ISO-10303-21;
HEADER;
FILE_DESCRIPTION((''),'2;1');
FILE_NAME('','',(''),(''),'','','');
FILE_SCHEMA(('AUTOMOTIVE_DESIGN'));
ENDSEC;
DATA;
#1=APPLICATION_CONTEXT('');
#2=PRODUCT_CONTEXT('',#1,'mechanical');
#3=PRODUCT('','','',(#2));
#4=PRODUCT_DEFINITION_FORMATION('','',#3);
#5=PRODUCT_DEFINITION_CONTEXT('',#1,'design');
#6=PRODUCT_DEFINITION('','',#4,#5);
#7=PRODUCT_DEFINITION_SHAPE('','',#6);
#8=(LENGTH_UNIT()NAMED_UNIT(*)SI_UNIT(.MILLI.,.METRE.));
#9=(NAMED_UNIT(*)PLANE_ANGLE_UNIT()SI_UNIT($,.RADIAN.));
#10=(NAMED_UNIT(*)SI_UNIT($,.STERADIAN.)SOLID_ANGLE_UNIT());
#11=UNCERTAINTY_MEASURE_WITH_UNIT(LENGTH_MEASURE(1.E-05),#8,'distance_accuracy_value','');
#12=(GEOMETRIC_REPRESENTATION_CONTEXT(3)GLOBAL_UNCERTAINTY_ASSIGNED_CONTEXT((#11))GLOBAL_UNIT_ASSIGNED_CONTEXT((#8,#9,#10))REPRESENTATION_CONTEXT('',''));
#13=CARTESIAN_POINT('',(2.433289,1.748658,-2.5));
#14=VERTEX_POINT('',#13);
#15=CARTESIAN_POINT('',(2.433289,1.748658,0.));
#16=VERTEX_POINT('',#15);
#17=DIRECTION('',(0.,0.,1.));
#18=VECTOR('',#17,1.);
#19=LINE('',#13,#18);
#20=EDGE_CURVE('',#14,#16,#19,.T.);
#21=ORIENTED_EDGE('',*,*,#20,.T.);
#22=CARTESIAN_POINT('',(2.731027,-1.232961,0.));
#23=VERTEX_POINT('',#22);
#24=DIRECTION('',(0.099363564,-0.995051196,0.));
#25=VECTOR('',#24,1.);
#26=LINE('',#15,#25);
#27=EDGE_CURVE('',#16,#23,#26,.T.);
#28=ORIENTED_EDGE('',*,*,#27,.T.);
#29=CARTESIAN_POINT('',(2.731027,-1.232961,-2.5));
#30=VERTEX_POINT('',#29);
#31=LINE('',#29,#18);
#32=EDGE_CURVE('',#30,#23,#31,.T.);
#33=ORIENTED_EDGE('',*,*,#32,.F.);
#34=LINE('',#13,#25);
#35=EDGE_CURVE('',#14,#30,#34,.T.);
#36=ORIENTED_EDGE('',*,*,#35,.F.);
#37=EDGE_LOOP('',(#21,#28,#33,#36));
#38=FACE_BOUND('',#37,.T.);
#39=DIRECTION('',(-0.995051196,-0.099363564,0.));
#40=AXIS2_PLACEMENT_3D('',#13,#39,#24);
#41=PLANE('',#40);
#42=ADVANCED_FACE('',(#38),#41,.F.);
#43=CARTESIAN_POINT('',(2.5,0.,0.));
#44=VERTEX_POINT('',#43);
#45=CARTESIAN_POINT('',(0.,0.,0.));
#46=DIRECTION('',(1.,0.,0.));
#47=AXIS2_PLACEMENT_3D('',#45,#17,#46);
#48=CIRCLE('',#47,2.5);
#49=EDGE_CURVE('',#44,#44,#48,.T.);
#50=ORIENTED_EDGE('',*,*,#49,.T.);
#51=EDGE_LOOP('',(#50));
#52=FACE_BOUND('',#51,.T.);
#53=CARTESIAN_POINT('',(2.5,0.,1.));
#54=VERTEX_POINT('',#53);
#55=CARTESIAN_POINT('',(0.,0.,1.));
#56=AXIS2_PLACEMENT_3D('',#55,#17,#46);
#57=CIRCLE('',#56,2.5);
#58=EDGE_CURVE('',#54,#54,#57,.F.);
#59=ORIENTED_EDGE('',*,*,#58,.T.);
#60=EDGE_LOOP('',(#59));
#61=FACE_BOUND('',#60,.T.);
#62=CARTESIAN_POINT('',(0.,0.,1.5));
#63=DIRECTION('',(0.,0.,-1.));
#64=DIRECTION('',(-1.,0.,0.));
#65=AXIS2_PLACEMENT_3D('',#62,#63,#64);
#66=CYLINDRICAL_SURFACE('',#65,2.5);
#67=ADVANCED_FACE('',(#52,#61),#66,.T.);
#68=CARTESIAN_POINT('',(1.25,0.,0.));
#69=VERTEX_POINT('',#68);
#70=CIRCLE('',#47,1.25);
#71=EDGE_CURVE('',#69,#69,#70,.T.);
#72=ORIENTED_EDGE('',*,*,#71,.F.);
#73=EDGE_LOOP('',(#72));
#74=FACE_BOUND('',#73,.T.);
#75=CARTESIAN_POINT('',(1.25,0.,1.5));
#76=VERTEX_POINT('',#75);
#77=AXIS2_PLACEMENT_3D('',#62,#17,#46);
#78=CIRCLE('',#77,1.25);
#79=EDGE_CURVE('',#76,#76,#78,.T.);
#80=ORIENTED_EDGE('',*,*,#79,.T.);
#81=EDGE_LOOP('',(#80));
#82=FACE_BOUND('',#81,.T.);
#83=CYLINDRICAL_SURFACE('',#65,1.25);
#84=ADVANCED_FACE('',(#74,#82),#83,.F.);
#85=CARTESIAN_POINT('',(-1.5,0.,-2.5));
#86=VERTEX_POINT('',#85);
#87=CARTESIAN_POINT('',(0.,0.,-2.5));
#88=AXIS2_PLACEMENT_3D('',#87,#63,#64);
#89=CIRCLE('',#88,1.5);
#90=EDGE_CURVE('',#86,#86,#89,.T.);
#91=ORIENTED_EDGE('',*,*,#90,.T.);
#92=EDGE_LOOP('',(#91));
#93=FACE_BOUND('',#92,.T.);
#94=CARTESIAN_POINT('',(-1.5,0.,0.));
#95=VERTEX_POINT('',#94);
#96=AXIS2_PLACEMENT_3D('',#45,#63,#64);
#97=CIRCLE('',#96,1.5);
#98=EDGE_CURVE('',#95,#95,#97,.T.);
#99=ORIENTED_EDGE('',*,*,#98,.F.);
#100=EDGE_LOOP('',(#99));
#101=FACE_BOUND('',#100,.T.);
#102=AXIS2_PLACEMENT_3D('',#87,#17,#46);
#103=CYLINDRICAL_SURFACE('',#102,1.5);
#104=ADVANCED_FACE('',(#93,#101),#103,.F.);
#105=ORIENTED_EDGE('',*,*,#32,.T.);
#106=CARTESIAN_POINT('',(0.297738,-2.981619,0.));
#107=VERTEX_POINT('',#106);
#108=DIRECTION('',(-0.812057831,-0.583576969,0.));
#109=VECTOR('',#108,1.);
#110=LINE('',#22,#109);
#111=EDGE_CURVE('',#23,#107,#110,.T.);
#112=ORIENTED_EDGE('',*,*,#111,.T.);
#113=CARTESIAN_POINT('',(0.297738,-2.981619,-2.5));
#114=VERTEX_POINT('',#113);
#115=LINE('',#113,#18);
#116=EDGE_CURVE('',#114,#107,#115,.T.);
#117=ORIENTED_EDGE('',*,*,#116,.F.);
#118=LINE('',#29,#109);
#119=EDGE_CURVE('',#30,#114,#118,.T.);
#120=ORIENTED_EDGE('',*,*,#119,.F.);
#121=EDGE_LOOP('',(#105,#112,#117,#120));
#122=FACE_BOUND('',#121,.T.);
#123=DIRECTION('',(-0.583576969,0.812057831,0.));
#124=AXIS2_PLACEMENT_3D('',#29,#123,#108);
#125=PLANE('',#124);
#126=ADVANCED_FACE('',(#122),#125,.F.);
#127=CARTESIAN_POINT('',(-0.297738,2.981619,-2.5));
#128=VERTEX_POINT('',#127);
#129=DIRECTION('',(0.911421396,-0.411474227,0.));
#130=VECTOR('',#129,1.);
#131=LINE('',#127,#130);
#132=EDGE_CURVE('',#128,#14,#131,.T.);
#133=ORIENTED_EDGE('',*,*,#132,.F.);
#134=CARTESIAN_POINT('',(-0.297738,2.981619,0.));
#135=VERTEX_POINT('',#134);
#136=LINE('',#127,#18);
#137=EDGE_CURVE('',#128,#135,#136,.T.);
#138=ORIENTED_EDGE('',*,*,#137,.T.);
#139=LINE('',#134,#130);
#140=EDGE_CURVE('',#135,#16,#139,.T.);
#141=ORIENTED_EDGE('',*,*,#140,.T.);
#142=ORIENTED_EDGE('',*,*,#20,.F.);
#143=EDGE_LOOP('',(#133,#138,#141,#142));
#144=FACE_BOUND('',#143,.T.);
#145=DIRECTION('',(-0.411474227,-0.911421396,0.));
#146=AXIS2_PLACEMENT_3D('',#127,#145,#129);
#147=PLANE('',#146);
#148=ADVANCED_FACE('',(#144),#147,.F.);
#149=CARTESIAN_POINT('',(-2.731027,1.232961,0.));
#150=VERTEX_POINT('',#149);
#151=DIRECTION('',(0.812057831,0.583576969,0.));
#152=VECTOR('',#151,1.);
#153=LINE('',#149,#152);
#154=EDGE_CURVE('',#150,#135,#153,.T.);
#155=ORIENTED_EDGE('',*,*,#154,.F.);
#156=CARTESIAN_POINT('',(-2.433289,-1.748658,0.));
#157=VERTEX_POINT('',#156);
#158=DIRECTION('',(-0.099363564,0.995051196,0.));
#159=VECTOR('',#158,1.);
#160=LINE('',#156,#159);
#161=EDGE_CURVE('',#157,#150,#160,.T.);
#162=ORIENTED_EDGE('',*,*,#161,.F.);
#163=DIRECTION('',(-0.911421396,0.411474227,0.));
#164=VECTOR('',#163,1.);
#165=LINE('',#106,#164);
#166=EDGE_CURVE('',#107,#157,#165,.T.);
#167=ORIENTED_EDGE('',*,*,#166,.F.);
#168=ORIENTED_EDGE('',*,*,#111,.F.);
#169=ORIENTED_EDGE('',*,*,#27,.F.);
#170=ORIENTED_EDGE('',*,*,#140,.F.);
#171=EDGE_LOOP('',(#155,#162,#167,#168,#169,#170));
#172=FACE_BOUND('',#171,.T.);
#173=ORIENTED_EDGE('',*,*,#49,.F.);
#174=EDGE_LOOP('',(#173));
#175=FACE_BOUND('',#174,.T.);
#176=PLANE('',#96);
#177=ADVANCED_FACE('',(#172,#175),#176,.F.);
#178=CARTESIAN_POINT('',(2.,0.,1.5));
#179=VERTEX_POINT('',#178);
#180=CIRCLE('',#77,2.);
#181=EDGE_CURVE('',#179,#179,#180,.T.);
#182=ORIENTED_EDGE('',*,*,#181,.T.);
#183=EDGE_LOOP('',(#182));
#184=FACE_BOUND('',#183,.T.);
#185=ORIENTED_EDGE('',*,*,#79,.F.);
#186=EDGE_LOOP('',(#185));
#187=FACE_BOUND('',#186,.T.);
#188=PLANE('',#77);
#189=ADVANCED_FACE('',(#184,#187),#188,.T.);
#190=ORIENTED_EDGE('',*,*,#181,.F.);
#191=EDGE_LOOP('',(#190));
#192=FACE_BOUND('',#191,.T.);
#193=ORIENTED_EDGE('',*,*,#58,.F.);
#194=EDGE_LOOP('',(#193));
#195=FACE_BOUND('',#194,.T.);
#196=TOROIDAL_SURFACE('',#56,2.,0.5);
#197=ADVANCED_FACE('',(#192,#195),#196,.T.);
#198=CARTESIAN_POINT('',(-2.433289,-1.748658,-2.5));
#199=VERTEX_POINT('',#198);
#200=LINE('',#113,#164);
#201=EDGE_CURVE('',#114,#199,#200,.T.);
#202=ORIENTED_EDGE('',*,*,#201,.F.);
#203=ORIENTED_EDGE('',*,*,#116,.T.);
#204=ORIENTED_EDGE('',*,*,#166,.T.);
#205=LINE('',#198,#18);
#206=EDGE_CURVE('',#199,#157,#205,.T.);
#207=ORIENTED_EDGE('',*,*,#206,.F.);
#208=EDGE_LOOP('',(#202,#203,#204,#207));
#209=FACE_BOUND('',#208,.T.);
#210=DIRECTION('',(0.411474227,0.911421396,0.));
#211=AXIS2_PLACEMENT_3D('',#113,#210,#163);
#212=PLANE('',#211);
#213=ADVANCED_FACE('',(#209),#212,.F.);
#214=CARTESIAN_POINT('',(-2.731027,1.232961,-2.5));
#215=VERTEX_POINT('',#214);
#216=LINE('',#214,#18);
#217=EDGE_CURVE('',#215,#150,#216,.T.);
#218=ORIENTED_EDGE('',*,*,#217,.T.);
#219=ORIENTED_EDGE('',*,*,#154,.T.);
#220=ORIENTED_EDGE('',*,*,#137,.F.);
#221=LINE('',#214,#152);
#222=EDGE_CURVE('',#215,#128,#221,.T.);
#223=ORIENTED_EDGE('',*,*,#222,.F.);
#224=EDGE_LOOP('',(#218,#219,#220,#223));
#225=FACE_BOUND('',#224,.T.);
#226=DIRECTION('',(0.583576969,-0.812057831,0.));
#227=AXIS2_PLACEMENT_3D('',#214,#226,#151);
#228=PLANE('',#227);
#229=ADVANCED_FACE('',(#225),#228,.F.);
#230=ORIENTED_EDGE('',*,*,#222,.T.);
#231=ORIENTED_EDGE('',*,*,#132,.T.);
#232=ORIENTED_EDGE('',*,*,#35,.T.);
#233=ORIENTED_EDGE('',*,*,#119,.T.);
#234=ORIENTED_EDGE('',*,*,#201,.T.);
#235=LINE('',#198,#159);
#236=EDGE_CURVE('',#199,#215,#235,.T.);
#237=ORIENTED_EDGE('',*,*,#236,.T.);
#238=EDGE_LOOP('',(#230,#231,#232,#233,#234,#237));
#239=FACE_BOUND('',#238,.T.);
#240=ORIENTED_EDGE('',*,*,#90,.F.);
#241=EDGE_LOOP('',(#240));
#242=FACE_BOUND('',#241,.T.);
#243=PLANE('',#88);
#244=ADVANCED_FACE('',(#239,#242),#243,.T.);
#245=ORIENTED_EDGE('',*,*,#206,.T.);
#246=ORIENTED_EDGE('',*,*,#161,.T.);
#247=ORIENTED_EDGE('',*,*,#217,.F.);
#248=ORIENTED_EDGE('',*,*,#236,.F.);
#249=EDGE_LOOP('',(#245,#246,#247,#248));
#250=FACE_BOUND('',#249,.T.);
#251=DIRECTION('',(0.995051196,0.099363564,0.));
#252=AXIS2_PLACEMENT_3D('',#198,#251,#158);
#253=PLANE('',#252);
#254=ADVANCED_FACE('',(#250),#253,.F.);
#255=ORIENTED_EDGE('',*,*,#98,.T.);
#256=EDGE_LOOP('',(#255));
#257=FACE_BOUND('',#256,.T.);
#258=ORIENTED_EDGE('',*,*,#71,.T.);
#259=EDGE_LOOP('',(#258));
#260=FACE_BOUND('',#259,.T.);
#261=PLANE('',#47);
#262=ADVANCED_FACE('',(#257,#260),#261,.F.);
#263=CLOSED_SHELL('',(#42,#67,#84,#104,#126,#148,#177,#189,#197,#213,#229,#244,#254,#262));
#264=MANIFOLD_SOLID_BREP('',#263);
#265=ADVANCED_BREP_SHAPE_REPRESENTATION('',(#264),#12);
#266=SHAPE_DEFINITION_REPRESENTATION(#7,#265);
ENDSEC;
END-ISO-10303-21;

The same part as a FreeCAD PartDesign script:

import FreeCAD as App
import Part
import Sketcher
from FreeCAD import Vector


def edges_at(feature, points):
    """Names of the edges that pass closest to the given points."""
    edges = feature.Shape.Edges
    near = lambda p: min(range(len(edges)), key=lambda i: edges[i].distToShape(Part.Vertex(*p))[0])
    return sorted({f"Edge{near(p) + 1}" for p in points})

doc = App.newDocument("Part")
body = doc.addObject("PartDesign::Body", "Body")

# Sketch on XY plane
sketch1 = body.newObject("Sketcher::SketchObject", "Sketch")
sketch1.AttachmentSupport = (doc.getObject("XY_Plane"), [""])
sketch1.MapMode = "FlatFace"
sketch1.addGeometry(Part.Circle(Vector(0, 0, 0), Vector(0, 0, 1), 2.5), False)
sketch1.addGeometry(Part.Circle(Vector(0, 0, 0), Vector(0, 0, 1), 1.25), False)
sketch1.addConstraint(Sketcher.Constraint("Coincident", 0, 3, -1, 1))
sketch1.addConstraint(Sketcher.Constraint("Coincident", 1, 3, -1, 1))
sketch1.addConstraint(Sketcher.Constraint("Diameter", 0, 5.0))
sketch1.addConstraint(Sketcher.Constraint("Diameter", 1, 2.5))
pad1 = body.newObject("PartDesign::Pad", "Pad")
pad1.Profile = sketch1
pad1.Length = 1.5
doc.recompute()

fillet = body.newObject("PartDesign::Fillet", "Fillet")
fillet.Base = (pad1, edges_at(pad1, [(-2.5, 0, 1.5)]))
fillet.Radius = 0.5

# Sketch on XY plane
sketch2 = body.newObject("Sketcher::SketchObject", "Sketch001")
sketch2.AttachmentSupport = (doc.getObject("XY_Plane"), [""])
sketch2.MapMode = "FlatFace"
sketch2.addGeometry(Part.LineSegment(Vector(-2.433289, -1.748658, 0), Vector(-2.731027, 1.232961, 0)), False)
sketch2.addGeometry(Part.LineSegment(Vector(-2.731027, 1.232961, 0), Vector(-0.297738, 2.981619, 0)), False)
sketch2.addGeometry(Part.LineSegment(Vector(-0.297738, 2.981619, 0), Vector(2.433289, 1.748658, 0)), False)
sketch2.addGeometry(Part.LineSegment(Vector(2.433289, 1.748658, 0), Vector(2.731027, -1.232961, 0)), False)
sketch2.addGeometry(Part.LineSegment(Vector(2.731027, -1.232961, 0), Vector(0.297738, -2.981619, 0)), False)
sketch2.addGeometry(Part.LineSegment(Vector(0.297738, -2.981619, 0), Vector(-2.433289, -1.748658, 0)), False)
sketch2.addGeometry(Part.Circle(Vector(0, 0, 0), Vector(0, 0, 1), 1.5), False)
sketch2.addConstraint(Sketcher.Constraint("Coincident", 0, 2, 1, 1))
sketch2.addConstraint(Sketcher.Constraint("Coincident", 1, 2, 2, 1))
sketch2.addConstraint(Sketcher.Constraint("Coincident", 2, 2, 3, 1))
sketch2.addConstraint(Sketcher.Constraint("Coincident", 3, 2, 4, 1))
sketch2.addConstraint(Sketcher.Constraint("Coincident", 4, 2, 5, 1))
sketch2.addConstraint(Sketcher.Constraint("Coincident", 5, 2, 0, 1))
sketch2.addConstraint(Sketcher.Constraint("Coincident", 6, 3, -1, 1))
sketch2.addConstraint(Sketcher.Constraint("Symmetric", 0, 2, 3, 2, -1, 1))
sketch2.addConstraint(Sketcher.Constraint("Symmetric", 1, 2, 4, 2, -1, 1))
sketch2.addConstraint(Sketcher.Constraint("Symmetric", 2, 2, 5, 2, -1, 1))
sketch2.addConstraint(Sketcher.Constraint("Equal", 0, 1))
sketch2.addConstraint(Sketcher.Constraint("Equal", 1, 2))
sketch2.addConstraint(Sketcher.Constraint("Diameter", 6, 3.0))
sketch2.addConstraint(Sketcher.Constraint("DistanceY", -1, 1, 0, 2, 1.232961))
sketch2.addConstraint(Sketcher.Constraint("DistanceY", -1, 1, 1, 2, 2.981619))
sketch2.addConstraint(Sketcher.Constraint("DistanceX", -1, 1, 2, 2, 2.433289))
sketch2.addConstraint(Sketcher.Constraint("DistanceX", 0, 2, 1, 2, 2.433289))
pad2 = body.newObject("PartDesign::Pad", "Pad001")
pad2.Profile = sketch2
pad2.Length = 2.5
pad2.Reversed = True

doc.recompute()
